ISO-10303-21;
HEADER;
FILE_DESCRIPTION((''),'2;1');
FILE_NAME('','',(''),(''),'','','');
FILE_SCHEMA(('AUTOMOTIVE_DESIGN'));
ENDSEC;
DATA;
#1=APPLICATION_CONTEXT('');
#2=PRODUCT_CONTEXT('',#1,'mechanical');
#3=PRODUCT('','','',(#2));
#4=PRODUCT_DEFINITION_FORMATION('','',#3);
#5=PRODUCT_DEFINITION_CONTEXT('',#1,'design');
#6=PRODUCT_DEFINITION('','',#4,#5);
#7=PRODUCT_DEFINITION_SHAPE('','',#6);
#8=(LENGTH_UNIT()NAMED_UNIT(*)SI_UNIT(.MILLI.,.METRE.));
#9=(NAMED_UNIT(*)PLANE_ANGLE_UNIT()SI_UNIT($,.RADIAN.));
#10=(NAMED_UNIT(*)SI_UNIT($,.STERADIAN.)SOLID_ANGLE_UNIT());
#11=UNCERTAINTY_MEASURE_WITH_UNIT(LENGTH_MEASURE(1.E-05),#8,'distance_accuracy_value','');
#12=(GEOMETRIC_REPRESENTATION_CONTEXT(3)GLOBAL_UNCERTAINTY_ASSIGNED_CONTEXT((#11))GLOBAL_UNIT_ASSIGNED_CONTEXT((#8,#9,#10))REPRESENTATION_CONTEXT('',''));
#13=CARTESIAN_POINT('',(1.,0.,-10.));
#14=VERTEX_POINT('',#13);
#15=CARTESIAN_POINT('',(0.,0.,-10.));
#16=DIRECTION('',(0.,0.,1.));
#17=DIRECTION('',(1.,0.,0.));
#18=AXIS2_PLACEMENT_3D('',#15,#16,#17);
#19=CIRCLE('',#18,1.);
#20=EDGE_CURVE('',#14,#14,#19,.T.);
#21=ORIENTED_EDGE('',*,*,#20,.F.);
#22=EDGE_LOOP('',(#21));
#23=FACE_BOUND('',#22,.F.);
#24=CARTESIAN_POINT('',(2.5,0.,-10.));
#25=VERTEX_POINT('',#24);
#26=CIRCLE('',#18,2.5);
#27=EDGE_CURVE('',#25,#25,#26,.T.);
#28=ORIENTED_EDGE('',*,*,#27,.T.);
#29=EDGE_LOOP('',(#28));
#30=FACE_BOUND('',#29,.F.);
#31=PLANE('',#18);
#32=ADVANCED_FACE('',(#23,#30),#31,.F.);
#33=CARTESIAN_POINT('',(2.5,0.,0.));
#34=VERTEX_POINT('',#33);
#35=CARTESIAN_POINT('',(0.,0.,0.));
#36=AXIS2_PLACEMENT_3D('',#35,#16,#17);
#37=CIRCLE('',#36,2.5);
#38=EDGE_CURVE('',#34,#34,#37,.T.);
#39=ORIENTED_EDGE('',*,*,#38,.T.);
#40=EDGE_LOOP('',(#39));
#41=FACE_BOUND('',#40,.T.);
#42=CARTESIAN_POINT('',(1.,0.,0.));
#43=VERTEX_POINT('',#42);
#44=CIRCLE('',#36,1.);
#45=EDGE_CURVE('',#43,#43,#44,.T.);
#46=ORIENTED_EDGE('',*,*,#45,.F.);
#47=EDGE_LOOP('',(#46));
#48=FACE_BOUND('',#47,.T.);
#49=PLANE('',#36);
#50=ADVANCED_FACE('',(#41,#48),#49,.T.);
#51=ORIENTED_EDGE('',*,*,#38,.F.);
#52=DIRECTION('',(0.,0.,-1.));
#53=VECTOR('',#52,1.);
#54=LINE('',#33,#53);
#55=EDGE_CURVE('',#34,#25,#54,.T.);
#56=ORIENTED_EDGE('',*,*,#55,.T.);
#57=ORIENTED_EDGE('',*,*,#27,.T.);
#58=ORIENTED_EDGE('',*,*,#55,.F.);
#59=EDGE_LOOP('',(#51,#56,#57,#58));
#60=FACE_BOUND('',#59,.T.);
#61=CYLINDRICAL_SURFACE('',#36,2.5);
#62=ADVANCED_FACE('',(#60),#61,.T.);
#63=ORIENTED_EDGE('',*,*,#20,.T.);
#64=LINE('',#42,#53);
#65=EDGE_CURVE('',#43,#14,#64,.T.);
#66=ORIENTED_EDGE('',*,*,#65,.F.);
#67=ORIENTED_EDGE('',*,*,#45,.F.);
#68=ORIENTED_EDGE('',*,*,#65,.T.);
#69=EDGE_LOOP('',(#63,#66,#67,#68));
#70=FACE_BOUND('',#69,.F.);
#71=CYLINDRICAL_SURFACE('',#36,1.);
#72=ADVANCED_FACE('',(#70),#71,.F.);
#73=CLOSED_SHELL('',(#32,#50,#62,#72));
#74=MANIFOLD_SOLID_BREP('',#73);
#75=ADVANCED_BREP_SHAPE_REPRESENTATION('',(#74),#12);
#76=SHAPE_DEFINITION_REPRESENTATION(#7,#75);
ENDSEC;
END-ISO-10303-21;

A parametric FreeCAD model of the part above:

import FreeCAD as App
import Part
import Sketcher

doc = App.newDocument("Part")
params = doc.addObject("Spreadsheet::Sheet", "Params")
for row, (alias, value) in enumerate([
    ("sketch1_diameter", "5 mm"),
    ("sketch1_diameter2", "2 mm"),
    ("pad1_length", "10 mm"),
], start=1):
    params.set(f"A{row}", alias)
    params.set(f"B{row}", "=" + value)
    params.setAlias(f"B{row}", alias)

body = doc.addObject("PartDesign::Body", "Body")

# Sketch on XY plane
sketch1 = body.newObject("Sketcher::SketchObject", "Sketch")
sketch1.AttachmentSupport = (doc.getObject("XY_Plane"), [""])
sketch1.MapMode = "FlatFace"
sketch1.addGeometry([
    Part.Circle(App.Vector(0, 0, 0), App.Vector(0, 0, 1), 2.5),
    Part.Circle(App.Vector(0, 0, 0), App.Vector(0, 0, 1), 1),
], False)
sketch1.addConstraint([
    Sketcher.Constraint("Coincident", 0, 3, -1, 1),
    Sketcher.Constraint("Coincident", 1, 3, -1, 1),
    Sketcher.Constraint("Diameter", 0, 5.0),
    Sketcher.Constraint("Diameter", 1, 2.0),
])
sketch1.setExpression("Constraints[2]", "Params.sketch1_diameter")
sketch1.setExpression("Constraints[3]", "Params.sketch1_diameter2")
pad1 = body.newObject("PartDesign::Pad", "Pad")
pad1.Profile = sketch1
pad1.setExpression("Length", "Params.pad1_length")
pad1.Reversed = True

doc.recompute()
